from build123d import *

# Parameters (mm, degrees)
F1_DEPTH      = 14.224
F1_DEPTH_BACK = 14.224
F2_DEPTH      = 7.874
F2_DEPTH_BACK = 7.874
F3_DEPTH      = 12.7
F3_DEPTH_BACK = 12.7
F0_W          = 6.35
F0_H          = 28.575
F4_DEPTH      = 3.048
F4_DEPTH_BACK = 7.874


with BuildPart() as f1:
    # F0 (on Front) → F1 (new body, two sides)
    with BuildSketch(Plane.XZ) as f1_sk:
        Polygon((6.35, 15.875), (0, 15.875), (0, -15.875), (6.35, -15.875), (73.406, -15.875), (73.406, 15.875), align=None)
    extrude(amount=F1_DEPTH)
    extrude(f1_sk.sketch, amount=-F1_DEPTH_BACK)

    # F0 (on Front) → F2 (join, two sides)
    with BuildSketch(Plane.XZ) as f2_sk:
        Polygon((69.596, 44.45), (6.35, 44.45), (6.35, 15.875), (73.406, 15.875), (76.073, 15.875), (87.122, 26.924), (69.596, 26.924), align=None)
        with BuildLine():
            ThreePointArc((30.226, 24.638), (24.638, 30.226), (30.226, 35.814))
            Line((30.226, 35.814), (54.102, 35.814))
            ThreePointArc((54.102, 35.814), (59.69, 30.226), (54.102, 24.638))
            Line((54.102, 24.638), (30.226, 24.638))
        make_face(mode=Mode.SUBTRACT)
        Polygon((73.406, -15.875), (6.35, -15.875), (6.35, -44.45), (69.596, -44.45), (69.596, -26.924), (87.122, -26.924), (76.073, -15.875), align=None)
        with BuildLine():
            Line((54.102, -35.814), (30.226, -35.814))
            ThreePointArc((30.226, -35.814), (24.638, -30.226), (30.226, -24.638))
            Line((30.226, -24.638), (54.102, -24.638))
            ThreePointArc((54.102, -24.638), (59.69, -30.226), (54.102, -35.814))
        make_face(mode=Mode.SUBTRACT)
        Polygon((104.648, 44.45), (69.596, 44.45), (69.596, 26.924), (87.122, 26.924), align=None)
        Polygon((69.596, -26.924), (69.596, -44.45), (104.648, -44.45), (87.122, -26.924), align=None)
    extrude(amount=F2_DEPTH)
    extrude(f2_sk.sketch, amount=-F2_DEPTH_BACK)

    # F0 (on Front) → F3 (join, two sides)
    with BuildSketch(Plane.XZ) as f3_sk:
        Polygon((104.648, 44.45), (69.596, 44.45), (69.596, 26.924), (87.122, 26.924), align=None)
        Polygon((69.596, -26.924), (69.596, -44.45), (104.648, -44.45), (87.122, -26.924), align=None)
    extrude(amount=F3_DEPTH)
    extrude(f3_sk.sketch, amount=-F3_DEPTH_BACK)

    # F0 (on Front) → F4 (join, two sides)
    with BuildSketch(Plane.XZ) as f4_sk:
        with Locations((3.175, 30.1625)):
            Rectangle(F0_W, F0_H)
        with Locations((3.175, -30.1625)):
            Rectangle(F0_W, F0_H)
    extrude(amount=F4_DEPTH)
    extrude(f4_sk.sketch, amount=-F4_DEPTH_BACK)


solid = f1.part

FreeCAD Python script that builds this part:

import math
import FreeCAD as App
import Part
import Sketcher

V = App.Vector
Q = App.Units.Quantity

doc = App.newDocument("Part")
body = doc.addObject("PartDesign::Body", "Body")

# Sketch on XZ plane
sketch1 = doc.addObject("Sketcher::SketchObject", "Sketch")
body.addObject(sketch1)
sketch1.AttachmentSupport = (doc.XZ_Plane, [""])
sketch1.MapMode = "FlatFace"
sketch1.addGeometry([
    Part.LineSegment(V(0, 16, 0), V(0, -16, 0)),
    Part.LineSegment(V(0, -16, 0), V(73, -16, 0)),
    Part.LineSegment(V(73, -16, 0), V(73, 16, 0)),
    Part.LineSegment(V(73, 16, 0), V(0, 16, 0)),
], False)
sketch1.addConstraint([
    Sketcher.Constraint("Coincident", 0, 2, 1, 1),
    Sketcher.Constraint("Coincident", 1, 2, 2, 1),
    Sketcher.Constraint("Coincident", 2, 2, 3, 1),
    Sketcher.Constraint("Coincident", 3, 2, 0, 1),
    Sketcher.Constraint("Vertical", 0),
    Sketcher.Constraint("Horizontal", 1),
    Sketcher.Constraint("Vertical", 2),
    Sketcher.Constraint("Horizontal", 3),
    Sketcher.Constraint("Symmetric", 0, 2, 3, 2, -1, 1),
    Sketcher.Constraint("DistanceX", 1, 1, 1, 2, Q("2.89 in")),
    Sketcher.Constraint("DistanceY", 0, 2, 0, 1, Q("1.25 in")),
])
pad1 = doc.addObject("PartDesign::Pad", "Pad")
body.addObject(pad1)
pad1.Profile = sketch1
pad1.Type = "TwoLengths"
pad1.Length = Q("0.56 in")
pad1.Length2 = Q("0.56 in")

# Sketch on XZ plane
sketch2 = doc.addObject("Sketcher::SketchObject", "Sketch001")
body.addObject(sketch2)
sketch2.AttachmentSupport = (doc.XZ_Plane, [""])
sketch2.MapMode = "FlatFace"
sketch2.addGeometry([
    Part.LineSegment(V(6, 44, 0), V(6, 16, 0)),  # 0
    Part.LineSegment(V(6, 16, 0), V(76, 16, 0)),  # 1
    Part.LineSegment(V(76, 16, 0), V(105, 44, 0)),  # 2
    Part.LineSegment(V(105, 44, 0), V(6, 44, 0)),  # 3
    Part.LineSegment(V(54, 25, 0), V(30, 25, 0)),  # 4
    Part.ArcOfCircle(Part.Circle(V(30, 30, 0), V(0, 0, 1), 6), math.radians(90), math.radians(270)),  # 5
    Part.LineSegment(V(30, 36, 0), V(54, 36, 0)),  # 6
    Part.ArcOfCircle(Part.Circle(V(54, 30, 0), V(0, 0, 1), 6), math.radians(-90), math.radians(90)),  # 7
    Part.LineSegment(V(6, -16, 0), V(6, -44, 0)),  # 8
    Part.LineSegment(V(6, -44, 0), V(105, -44, 0)),  # 9
    Part.LineSegment(V(105, -44, 0), V(76, -16, 0)),  # 10
    Part.LineSegment(V(76, -16, 0), V(6, -16, 0)),  # 11
    Part.ArcOfCircle(Part.Circle(V(54, -30, 0), V(0, 0, 1), 6), math.radians(-90), math.radians(90)),  # 12
    Part.LineSegment(V(54, -36, 0), V(30, -36, 0)),  # 13
    Part.ArcOfCircle(Part.Circle(V(30, -30, 0), V(0, 0, 1), 6), math.radians(90), math.radians(270)),  # 14
    Part.LineSegment(V(30, -25, 0), V(54, -25, 0)),  # 15
], False)
sketch2.addConstraint([
    Sketcher.Constraint("Coincident", 0, 2, 1, 1),
    Sketcher.Constraint("Coincident", 1, 2, 2, 1),
    Sketcher.Constraint("Coincident", 2, 2, 3, 1),
    Sketcher.Constraint("Coincident", 3, 2, 0, 1),
    Sketcher.Constraint("Tangent", 4, 2, 5, 2),
    Sketcher.Constraint("Tangent", 5, 1, 6, 1),
    Sketcher.Constraint("Tangent", 6, 2, 7, 2),
    Sketcher.Constraint("Tangent", 7, 1, 4, 1),
    Sketcher.Constraint("Coincident", 8, 2, 9, 1),
    Sketcher.Constraint("Coincident", 9, 2, 10, 1),
    Sketcher.Constraint("Coincident", 10, 2, 11, 1),
    Sketcher.Constraint("Coincident", 11, 2, 8, 1),
    Sketcher.Constraint("Tangent", 12, 1, 13, 1),
    Sketcher.Constraint("Tangent", 13, 2, 14, 2),
    Sketcher.Constraint("Tangent", 14, 1, 15, 1),
    Sketcher.Constraint("Tangent", 15, 2, 12, 2),
    Sketcher.Constraint("Vertical", 0),
    Sketcher.Constraint("Horizontal", 1),
    Sketcher.Constraint("Horizontal", 3),
    Sketcher.Constraint("Horizontal", 4),
    Sketcher.Constraint("Horizontal", 6),
    Sketcher.Constraint("Vertical", 8),
    Sketcher.Constraint("Horizontal", 9),
    Sketcher.Constraint("Horizontal", 11),
    Sketcher.Constraint("Horizontal", 13),
    Sketcher.Constraint("Horizontal", 15),
    Sketcher.Constraint("Equal", 7, 12),
    Sketcher.Constraint("Symmetric", 7, 3, 12, 3, -1),
    Sketcher.Constraint("Symmetric", 3, 2, 8, 2, -1),
    Sketcher.Constraint("Symmetric", 1, 2, 10, 2, -1),
    Sketcher.Constraint("Perpendicular", 2, 10),
    Sketcher.Constraint("Vertical", 5, 3, 14, 3),
    Sketcher.Constraint("Vertical", 2, 2, 9, 2),
    Sketcher.Constraint("Radius", 5, Q("0.22 in")),
    Sketcher.Constraint("DistanceX", 3, 2, 3, 1, Q("3.87 in")),
    Sketcher.Constraint("DistanceX", 4, 2, 4, 1, Q("0.94 in")),
    Sketcher.Constraint("DistanceY", 9, 2, 2, 2, Q("3.5 in")),
    Sketcher.Constraint("DistanceX", 1, 1, 1, 2, Q("2.745 in")),
    Sketcher.Constraint("DistanceX", -1, 1, 5, 3, Q("1.19 in")),
    Sketcher.Constraint("DistanceY", -1, 1, 5, 3, Q("1.19 in")),
    Sketcher.Constraint("DistanceX", -1, 1, 0, 2, Q("0.25 in")),
])
pad2 = doc.addObject("PartDesign::Pad", "Pad001")
body.addObject(pad2)
pad2.Profile = sketch2
pad2.Type = "TwoLengths"
pad2.Length = Q("0.31 in")
pad2.Length2 = Q("0.31 in")

# Sketch on XZ plane
sketch3 = doc.addObject("Sketcher::SketchObject", "Sketch002")
body.addObject(sketch3)
sketch3.AttachmentSupport = (doc.XZ_Plane, [""])
sketch3.MapMode = "FlatFace"
sketch3.addGeometry([
    Part.LineSegment(V(105, 44, 0), V(70, 44, 0)),  # 0
    Part.LineSegment(V(70, 44, 0), V(70, 27, 0)),  # 1
    Part.LineSegment(V(70, 27, 0), V(87, 27, 0)),  # 2
    Part.LineSegment(V(87, 27, 0), V(105, 44, 0)),  # 3
    Part.LineSegment(V(70, -27, 0), V(70, -44, 0)),  # 4
    Part.LineSegment(V(70, -44, 0), V(105, -44, 0)),  # 5
    Part.LineSegment(V(105, -44, 0), V(87, -27, 0)),  # 6
    Part.LineSegment(V(87, -27, 0), V(70, -27, 0)),  # 7
], False)
sketch3.addConstraint([
    Sketcher.Constraint("Coincident", 0, 2, 1, 1),
    Sketcher.Constraint("Coincident", 1, 2, 2, 1),
    Sketcher.Constraint("Coincident", 2, 2, 3, 1),
    Sketcher.Constraint("Coincident", 3, 2, 0, 1),
    Sketcher.Constraint("Coincident", 4, 2, 5, 1),
    Sketcher.Constraint("Coincident", 5, 2, 6, 1),
    Sketcher.Constraint("Coincident", 6, 2, 7, 1),
    Sketcher.Constraint("Coincident", 7, 2, 4, 1),
    Sketcher.Constraint("Horizontal", 0),
    Sketcher.Constraint("Vertical", 1),
    Sketcher.Constraint("Horizontal", 2),
    Sketcher.Constraint("Vertical", 4),
    Sketcher.Constraint("Horizontal", 5),
    Sketcher.Constraint("Horizontal", 7),
    Sketcher.Constraint("Symmetric", 0, 2, 4, 2, -1),
    Sketcher.Constraint("Symmetric", 2, 2, 6, 2, -1),
    Sketcher.Constraint("Perpendicular", 3, 6),
    Sketcher.Constraint("Vertical", 3, 2, 5, 2),
    Sketcher.Constraint("Equal", 7, 1),
    Sketcher.Constraint("DistanceX", 0, 2, 0, 1, Q("1.38 in")),
    Sketcher.Constraint("DistanceY", 4, 2, 0, 2, Q("3.5 in")),
    Sketcher.Constraint("DistanceX", -1, 1, 0, 2, Q("2.74 in")),
])
pad3 = doc.addObject("PartDesign::Pad", "Pad002")
body.addObject(pad3)
pad3.Profile = sketch3
pad3.Type = "TwoLengths"
pad3.Length = Q("0.5 in")
pad3.Length2 = Q("0.5 in")

# Sketch on XZ plane
sketch4 = doc.addObject("Sketcher::SketchObject", "Sketch003")
body.addObject(sketch4)
sketch4.AttachmentSupport = (doc.XZ_Plane, [""])
sketch4.MapMode = "FlatFace"
sketch4.addGeometry([
    Part.LineSegment(V(0, 44, 0), V(0, 16, 0)),  # 0
    Part.LineSegment(V(0, 16, 0), V(6, 16, 0)),  # 1
    Part.LineSegment(V(6, 16, 0), V(6, 44, 0)),  # 2
    Part.LineSegment(V(6, 44, 0), V(0, 44, 0)),  # 3
    Part.LineSegment(V(0, -16, 0), V(0, -44, 0)),  # 4
    Part.LineSegment(V(0, -44, 0), V(6, -44, 0)),  # 5
    Part.LineSegment(V(6, -44, 0), V(6, -16, 0)),  # 6
    Part.LineSegment(V(6, -16, 0), V(0, -16, 0)),  # 7
], False)
sketch4.addConstraint([
    Sketcher.Constraint("Coincident", 0, 2, 1, 1),
    Sketcher.Constraint("Coincident", 1, 2, 2, 1),
    Sketcher.Constraint("Coincident", 2, 2, 3, 1),
    Sketcher.Constraint("Coincident", 3, 2, 0, 1),
    Sketcher.Constraint("Coincident", 4, 2, 5, 1),
    Sketcher.Constraint("Coincident", 5, 2, 6, 1),
    Sketcher.Constraint("Coincident", 6, 2, 7, 1),
    Sketcher.Constraint("Coincident", 7, 2, 4, 1),
    Sketcher.Constraint("Vertical", 0),
    Sketcher.Constraint("Horizontal", 1),
    Sketcher.Constraint("Vertical", 2),
    Sketcher.Constraint("Horizontal", 3),
    Sketcher.Constraint("Vertical", 4),
    Sketcher.Constraint("Horizontal", 5),
    Sketcher.Constraint("Vertical", 6),
    Sketcher.Constraint("Horizontal", 7),
    Sketcher.Constraint("Symmetric", 3, 2, 4, 2, -1, 1),
    Sketcher.Constraint("Symmetric", 1, 2, 6, 2, -1),
    Sketcher.Constraint("PointOnObject", 0, 2, -2),
    Sketcher.Constraint("DistanceX", 1, 1, 1, 2, Q("0.25 in")),
    Sketcher.Constraint("DistanceY", 4, 2, 3, 2, Q("3.5 in")),
    Sketcher.Constraint("DistanceY", 0, 2, 0, 1, Q("1.125 in")),
])
pad4 = doc.addObject("PartDesign::Pad", "Pad003")
body.addObject(pad4)
pad4.Profile = sketch4
pad4.Type = "TwoLengths"
pad4.Length = Q("0.12 in")
pad4.Length2 = Q("0.31 in")

doc.recompute()
